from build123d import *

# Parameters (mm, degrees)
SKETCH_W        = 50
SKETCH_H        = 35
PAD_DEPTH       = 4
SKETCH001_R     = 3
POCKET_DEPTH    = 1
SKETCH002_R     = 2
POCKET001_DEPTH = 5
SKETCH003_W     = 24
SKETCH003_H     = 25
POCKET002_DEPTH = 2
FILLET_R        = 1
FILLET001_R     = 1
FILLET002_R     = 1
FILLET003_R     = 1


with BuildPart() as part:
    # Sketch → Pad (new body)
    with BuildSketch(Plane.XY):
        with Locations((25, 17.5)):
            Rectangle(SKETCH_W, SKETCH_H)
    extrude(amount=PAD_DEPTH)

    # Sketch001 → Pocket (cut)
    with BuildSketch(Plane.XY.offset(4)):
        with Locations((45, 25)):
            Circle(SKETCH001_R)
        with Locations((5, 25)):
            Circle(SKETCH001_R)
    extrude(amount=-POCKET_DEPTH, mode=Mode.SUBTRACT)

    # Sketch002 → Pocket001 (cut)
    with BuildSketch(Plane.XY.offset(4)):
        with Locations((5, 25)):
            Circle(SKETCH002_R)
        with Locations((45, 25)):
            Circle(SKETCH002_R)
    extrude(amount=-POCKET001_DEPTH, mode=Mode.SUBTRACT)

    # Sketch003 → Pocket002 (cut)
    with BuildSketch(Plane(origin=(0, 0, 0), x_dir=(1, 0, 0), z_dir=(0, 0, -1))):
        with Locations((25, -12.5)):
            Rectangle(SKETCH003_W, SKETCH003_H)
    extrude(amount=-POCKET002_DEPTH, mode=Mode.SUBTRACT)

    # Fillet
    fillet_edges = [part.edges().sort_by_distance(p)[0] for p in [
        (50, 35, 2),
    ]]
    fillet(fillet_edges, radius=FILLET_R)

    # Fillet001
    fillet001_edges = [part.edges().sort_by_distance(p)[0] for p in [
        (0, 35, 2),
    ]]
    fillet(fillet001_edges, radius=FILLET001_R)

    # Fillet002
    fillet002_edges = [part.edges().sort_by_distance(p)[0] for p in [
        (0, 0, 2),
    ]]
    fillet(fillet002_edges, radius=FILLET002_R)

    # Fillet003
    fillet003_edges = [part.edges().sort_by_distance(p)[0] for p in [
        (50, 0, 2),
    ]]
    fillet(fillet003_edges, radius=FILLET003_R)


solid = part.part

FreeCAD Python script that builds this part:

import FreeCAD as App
import Part
import Sketcher


def edges_at(feature, points):
    """Names of the edges that pass closest to the given points."""
    edges = feature.Shape.Edges
    near = lambda p: min(range(len(edges)), key=lambda i: edges[i].distToShape(Part.Vertex(*p))[0])
    return sorted({f"Edge{near(p) + 1}" for p in points})


def add_polygon(sketch, points):
    """Adds a closed chain of lines whose ends are joined by coincident constraints."""
    first, n = sketch.GeometryCount, len(points)
    for a, b in zip(points, points[1:] + points[:1]):
        sketch.addGeometry(Part.LineSegment(App.Vector(*a, 0), App.Vector(*b, 0)), False)
    for i in range(n):
        sketch.addConstraint(Sketcher.Constraint("Coincident", first + i, 2, first + (i + 1) % n, 1))

doc = App.newDocument("Part")
params = doc.addObject("Spreadsheet::Sheet", "Params")
for row, (alias, value) in enumerate([
    ("sketch1_width", "50 mm"),
    ("sketch1_height", "35 mm"),
    ("pad1_length", "4 mm"),
    ("sketch2_diameter", "6 mm"),
    ("pocket1_length", "1 mm"),
    ("sketch3_diameter", "4 mm"),
    ("pocket2_length", "5 mm"),
    ("sketch4_width", "24 mm"),
    ("sketch4_height", "25 mm"),
    ("pocket3_length", "2 mm"),
    ("fillet_radius", "1 mm"),
    ("fillet2_radius", "1 mm"),
    ("fillet3_radius", "1 mm"),
    ("fillet4_radius", "1 mm"),
], start=1):
    params.set(f"A{row}", alias)
    params.set(f"B{row}", "=" + value)
    params.setAlias(f"B{row}", alias)

body = doc.addObject("PartDesign::Body", "Body")

# Sketch on XY plane
sketch1 = body.newObject("Sketcher::SketchObject", "Sketch")
sketch1.AttachmentSupport = (doc.getObject("XY_Plane"), [""])
sketch1.MapMode = "FlatFace"
add_polygon(sketch1, [(0, 35), (0, 0), (50, 0), (50, 35)])  # lines 0-3
sketch1.addConstraint([
    Sketcher.Constraint("Vertical", 0),
    Sketcher.Constraint("Horizontal", 1),
    Sketcher.Constraint("Vertical", 2),
    Sketcher.Constraint("Horizontal", 3),
    Sketcher.Constraint("Coincident", 0, 2, -1, 1),
    Sketcher.Constraint("DistanceX", 1, 1, 1, 2, 50.0),
    Sketcher.Constraint("DistanceY", 0, 2, 0, 1, 35.0),
])
sketch1.setExpression("Constraints[9]", "Params.sketch1_width")
sketch1.setExpression("Constraints[10]", "Params.sketch1_height")
pad1 = body.newObject("PartDesign::Pad", "Pad")
pad1.Profile = sketch1
pad1.setExpression("Length", "Params.pad1_length")

# Sketch on XY plane
sketch2 = body.newObject("Sketcher::SketchObject", "Sketch001")
sketch2.AttachmentSupport = (doc.getObject("XY_Plane"), [""])
sketch2.MapMode = "FlatFace"
sketch2.AttachmentOffset = App.Placement(App.Vector(0, 0, 4), App.Rotation())
sketch2.addGeometry([
    Part.Circle(App.Vector(45, 25, 0), App.Vector(0, 0, 1), 3),
    Part.Circle(App.Vector(5, 25, 0), App.Vector(0, 0, 1), 3),
], False)
sketch2.addConstraint([
    Sketcher.Constraint("Equal", 0, 1),
    Sketcher.Constraint("Horizontal", 0, 3, 1, 3),
    Sketcher.Constraint("Diameter", 0, 6.0),
    Sketcher.Constraint("DistanceX", -1, 1, 0, 3, 45.0),
    Sketcher.Constraint("DistanceY", -1, 1, 0, 3, 25.0),
    Sketcher.Constraint("DistanceX", -1, 1, 1, 3, 5.0),
])
sketch2.setExpression("Constraints[2]", "Params.sketch2_diameter")
pocket1 = body.newObject("PartDesign::Pocket", "Pocket")
pocket1.Profile = sketch2
pocket1.setExpression("Length", "Params.pocket1_length")

# Sketch on XY plane
sketch3 = body.newObject("Sketcher::SketchObject", "Sketch002")
sketch3.AttachmentSupport = (doc.getObject("XY_Plane"), [""])
sketch3.MapMode = "FlatFace"
sketch3.AttachmentOffset = App.Placement(App.Vector(0, 0, 4), App.Rotation())
sketch3.addGeometry([
    Part.Circle(App.Vector(5, 25, 0), App.Vector(0, 0, 1), 2),
    Part.Circle(App.Vector(45, 25, 0), App.Vector(0, 0, 1), 2),
], False)
sketch3.addConstraint([
    Sketcher.Constraint("Equal", 0, 1),
    Sketcher.Constraint("Horizontal", 0, 3, 1, 3),
    Sketcher.Constraint("Diameter", 0, 4.0),
    Sketcher.Constraint("DistanceX", -1, 1, 0, 3, 5.0),
    Sketcher.Constraint("DistanceY", -1, 1, 0, 3, 25.0),
    Sketcher.Constraint("DistanceX", -1, 1, 1, 3, 45.0),
])
sketch3.setExpression("Constraints[2]", "Params.sketch3_diameter")
pocket2 = body.newObject("PartDesign::Pocket", "Pocket001")
pocket2.Profile = sketch3
pocket2.setExpression("Length", "Params.pocket2_length")

# Sketch on XY plane
sketch4 = body.newObject("Sketcher::SketchObject", "Sketch003")
sketch4.AttachmentSupport = (doc.getObject("XY_Plane"), [""])
sketch4.MapMode = "FlatFace"
add_polygon(sketch4, [(13, 0), (13, 25), (37, 25), (37, 0)])  # lines 0-3
sketch4.addConstraint([
    Sketcher.Constraint("Vertical", 0),
    Sketcher.Constraint("Horizontal", 1),
    Sketcher.Constraint("Vertical", 2),
    Sketcher.Constraint("Horizontal", 3),
    Sketcher.Constraint("PointOnObject", 2, 2, -1),
    Sketcher.Constraint("DistanceX", 1, 1, 1, 2, 24.0),
    Sketcher.Constraint("DistanceY", 0, 1, 0, 2, 25.0),
    Sketcher.Constraint("DistanceX", -1, 1, 0, 2, 13.0),
])
sketch4.setExpression("Constraints[9]", "Params.sketch4_width")
sketch4.setExpression("Constraints[10]", "Params.sketch4_height")
pocket3 = body.newObject("PartDesign::Pocket", "Pocket002")
pocket3.Profile = sketch4
pocket3.setExpression("Length", "Params.pocket3_length")
pocket3.Reversed = True
doc.recompute()

fillet = body.newObject("PartDesign::Fillet", "Fillet")
fillet.Base = (pocket3, edges_at(pocket3, [(50, 35, 2)]))
fillet.setExpression("Radius", "Params.fillet_radius")
doc.recompute()

fillet2 = body.newObject("PartDesign::Fillet", "Fillet001")
fillet2.Base = (fillet, edges_at(fillet, [(0, 35, 2)]))
fillet2.setExpression("Radius", "Params.fillet2_radius")
doc.recompute()

fillet3 = body.newObject("PartDesign::Fillet", "Fillet002")
fillet3.Base = (fillet2, edges_at(fillet2, [(0, 0, 2)]))
fillet3.setExpression("Radius", "Params.fillet3_radius")
doc.recompute()

fillet4 = body.newObject("PartDesign::Fillet", "Fillet003")
fillet4.Base = (fillet3, edges_at(fillet3, [(50, 0, 2)]))
fillet4.setExpression("Radius", "Params.fillet4_radius")

doc.recompute()
